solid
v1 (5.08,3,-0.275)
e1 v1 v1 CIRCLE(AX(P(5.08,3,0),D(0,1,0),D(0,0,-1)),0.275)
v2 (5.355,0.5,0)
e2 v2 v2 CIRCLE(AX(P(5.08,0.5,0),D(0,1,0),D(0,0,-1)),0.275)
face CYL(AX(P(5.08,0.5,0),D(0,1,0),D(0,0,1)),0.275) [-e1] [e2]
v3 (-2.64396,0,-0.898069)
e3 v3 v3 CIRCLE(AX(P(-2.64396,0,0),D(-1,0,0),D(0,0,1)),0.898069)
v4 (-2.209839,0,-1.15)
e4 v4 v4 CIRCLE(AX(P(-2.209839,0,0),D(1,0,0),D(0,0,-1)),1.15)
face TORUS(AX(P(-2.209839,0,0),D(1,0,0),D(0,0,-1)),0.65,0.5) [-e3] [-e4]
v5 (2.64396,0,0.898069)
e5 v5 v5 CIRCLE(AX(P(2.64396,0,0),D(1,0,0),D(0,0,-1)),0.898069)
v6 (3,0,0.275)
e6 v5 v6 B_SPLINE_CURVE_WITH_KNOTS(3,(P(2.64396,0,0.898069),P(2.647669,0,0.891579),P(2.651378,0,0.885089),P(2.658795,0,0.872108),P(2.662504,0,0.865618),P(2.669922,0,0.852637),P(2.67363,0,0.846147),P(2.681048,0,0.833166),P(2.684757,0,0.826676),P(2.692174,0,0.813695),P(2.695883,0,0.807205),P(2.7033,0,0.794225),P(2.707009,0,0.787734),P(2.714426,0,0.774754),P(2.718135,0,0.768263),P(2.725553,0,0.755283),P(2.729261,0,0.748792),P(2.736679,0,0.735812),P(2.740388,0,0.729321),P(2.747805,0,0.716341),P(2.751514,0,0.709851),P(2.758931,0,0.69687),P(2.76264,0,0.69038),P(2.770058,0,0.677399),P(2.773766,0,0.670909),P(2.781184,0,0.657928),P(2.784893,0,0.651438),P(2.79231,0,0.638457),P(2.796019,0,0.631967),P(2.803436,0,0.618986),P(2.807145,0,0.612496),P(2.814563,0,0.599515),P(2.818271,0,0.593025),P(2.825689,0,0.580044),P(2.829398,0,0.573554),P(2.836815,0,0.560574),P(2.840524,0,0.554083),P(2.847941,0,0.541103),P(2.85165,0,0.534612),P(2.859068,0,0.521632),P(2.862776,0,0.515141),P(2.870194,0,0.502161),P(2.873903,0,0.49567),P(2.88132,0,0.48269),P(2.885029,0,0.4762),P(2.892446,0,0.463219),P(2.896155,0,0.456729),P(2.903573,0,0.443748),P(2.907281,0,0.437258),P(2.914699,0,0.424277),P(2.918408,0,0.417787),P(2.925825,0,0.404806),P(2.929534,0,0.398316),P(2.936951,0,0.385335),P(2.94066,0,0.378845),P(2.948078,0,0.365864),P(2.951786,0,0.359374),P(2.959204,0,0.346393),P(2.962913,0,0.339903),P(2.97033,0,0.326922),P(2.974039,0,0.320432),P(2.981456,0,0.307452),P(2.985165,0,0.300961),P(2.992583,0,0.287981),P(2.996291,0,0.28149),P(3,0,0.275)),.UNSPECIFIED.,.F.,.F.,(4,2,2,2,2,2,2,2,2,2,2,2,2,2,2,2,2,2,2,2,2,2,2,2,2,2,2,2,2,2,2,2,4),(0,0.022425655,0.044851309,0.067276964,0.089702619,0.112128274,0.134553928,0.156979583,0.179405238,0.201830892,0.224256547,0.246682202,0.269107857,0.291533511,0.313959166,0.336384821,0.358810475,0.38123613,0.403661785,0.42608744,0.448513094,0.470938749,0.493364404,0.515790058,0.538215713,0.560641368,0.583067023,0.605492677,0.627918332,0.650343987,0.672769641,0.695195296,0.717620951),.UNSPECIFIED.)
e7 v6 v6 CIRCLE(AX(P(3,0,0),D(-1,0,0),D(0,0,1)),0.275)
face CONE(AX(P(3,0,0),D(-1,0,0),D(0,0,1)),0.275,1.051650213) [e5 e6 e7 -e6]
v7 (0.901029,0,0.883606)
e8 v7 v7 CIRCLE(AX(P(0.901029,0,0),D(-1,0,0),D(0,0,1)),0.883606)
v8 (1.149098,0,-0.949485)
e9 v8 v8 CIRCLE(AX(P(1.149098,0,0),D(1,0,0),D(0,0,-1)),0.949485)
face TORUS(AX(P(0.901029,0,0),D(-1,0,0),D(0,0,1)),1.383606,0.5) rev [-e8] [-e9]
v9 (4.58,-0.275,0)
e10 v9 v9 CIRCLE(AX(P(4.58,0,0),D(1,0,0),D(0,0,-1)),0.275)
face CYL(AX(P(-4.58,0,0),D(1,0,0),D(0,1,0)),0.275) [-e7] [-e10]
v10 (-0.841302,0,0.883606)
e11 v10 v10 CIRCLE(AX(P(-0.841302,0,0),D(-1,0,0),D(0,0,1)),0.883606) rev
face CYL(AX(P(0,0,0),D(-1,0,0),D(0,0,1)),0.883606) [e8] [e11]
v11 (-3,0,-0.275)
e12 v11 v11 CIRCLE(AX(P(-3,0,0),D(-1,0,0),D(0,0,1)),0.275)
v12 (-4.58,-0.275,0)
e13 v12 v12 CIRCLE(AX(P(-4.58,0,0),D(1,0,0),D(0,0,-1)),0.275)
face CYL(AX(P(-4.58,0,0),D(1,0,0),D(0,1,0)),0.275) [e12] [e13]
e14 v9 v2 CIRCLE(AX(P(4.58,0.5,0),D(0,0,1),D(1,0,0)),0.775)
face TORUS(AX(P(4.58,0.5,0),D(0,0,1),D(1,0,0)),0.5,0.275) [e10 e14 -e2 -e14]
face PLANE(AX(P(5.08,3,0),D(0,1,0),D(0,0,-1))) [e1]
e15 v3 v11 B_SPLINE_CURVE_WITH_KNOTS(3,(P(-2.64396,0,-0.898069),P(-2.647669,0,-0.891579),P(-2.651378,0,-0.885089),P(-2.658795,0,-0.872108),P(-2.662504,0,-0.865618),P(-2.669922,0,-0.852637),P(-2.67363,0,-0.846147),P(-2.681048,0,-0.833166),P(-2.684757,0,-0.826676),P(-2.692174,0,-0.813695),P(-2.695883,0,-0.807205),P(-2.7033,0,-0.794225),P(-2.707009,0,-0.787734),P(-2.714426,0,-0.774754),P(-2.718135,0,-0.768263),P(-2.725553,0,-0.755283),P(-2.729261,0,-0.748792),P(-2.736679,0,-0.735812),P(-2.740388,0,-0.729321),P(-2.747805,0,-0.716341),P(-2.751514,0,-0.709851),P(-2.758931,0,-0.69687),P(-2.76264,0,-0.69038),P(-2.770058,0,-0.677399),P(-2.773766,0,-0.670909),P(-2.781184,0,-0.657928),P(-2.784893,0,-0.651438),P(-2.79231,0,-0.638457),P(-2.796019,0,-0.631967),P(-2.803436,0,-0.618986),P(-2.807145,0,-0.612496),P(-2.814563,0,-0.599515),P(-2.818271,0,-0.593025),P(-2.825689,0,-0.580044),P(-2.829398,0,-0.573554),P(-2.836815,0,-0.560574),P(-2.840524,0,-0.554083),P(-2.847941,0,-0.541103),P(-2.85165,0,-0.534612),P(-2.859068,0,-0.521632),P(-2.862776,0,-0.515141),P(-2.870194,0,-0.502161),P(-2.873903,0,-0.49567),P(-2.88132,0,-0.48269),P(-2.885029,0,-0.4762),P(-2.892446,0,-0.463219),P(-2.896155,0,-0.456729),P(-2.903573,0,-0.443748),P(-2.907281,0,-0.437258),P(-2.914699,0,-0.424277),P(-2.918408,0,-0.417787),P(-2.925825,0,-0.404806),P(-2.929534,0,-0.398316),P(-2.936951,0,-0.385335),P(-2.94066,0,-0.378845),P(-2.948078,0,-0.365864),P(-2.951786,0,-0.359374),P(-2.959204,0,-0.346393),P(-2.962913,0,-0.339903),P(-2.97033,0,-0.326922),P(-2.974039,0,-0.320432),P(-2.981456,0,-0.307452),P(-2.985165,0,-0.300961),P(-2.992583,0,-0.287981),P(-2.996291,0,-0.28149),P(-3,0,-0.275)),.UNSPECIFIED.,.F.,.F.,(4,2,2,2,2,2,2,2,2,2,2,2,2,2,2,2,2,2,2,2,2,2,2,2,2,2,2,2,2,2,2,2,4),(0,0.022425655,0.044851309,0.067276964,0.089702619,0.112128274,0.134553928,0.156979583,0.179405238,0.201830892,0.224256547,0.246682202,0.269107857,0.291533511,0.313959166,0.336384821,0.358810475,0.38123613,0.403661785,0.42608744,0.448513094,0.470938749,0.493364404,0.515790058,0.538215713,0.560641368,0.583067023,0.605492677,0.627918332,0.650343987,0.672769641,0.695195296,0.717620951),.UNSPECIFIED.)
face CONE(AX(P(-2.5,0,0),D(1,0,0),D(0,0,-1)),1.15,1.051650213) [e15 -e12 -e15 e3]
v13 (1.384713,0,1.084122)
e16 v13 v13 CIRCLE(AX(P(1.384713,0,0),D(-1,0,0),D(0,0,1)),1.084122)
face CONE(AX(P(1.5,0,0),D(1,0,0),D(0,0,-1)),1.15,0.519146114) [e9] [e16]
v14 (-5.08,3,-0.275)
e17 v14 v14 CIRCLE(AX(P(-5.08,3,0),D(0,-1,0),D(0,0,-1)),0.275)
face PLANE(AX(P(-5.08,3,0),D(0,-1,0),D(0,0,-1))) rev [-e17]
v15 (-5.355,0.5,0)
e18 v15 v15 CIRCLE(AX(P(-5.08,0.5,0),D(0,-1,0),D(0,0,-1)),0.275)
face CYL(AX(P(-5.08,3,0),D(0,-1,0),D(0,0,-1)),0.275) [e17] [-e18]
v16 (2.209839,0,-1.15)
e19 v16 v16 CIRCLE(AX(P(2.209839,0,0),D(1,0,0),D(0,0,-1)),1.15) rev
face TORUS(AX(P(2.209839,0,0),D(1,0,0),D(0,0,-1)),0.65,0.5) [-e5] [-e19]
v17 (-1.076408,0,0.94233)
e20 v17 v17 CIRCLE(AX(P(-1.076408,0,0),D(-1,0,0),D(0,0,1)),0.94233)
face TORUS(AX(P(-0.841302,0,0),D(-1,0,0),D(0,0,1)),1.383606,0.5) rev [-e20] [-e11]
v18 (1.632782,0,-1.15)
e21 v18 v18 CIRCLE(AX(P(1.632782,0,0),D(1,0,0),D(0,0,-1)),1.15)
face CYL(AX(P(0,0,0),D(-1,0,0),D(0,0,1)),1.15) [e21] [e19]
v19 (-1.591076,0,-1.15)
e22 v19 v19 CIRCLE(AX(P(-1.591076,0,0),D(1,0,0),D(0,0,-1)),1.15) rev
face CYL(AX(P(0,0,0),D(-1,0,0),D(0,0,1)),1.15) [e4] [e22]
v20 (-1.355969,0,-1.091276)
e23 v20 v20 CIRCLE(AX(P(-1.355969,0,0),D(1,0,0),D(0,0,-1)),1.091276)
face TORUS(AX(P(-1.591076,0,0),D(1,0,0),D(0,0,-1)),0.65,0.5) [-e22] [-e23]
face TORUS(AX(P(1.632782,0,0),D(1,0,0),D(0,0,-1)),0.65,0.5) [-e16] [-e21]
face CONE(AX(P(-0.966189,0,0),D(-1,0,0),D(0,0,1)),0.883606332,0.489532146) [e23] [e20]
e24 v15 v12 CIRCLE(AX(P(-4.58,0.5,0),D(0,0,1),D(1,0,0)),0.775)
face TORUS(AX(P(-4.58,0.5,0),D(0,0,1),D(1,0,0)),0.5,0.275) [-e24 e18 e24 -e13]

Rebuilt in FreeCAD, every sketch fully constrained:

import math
import FreeCAD as App
import Part
import Sketcher
from FreeCAD import Vector


def edges_at(feature, points):
    """Names of the edges that pass closest to the given points."""
    edges = feature.Shape.Edges
    near = lambda p: min(range(len(edges)), key=lambda i: edges[i].distToShape(Part.Vertex(*p))[0])
    return sorted({f"Edge{near(p) + 1}" for p in points})

doc = App.newDocument("Part")
params = doc.addObject("Spreadsheet::Sheet", "Params")
for row, (alias, value) in enumerate([
    ("sketch1_width", "1 mm"),
    ("sketch1_width2", "2 mm"),
    ("sketch1_width3", "6 mm"),
    ("revolution_angle", "360 deg"),
    ("fillet_radius", "0.5 mm"),
    ("sketch2_diameter", "0.55 mm"),
    ("sketch3_radius", "0.5 mm"),
    ("sketch3_height", "2.5 mm"),
    ("sketch3_width", "9.16 mm"),
], start=1):
    params.set(f"A{row}", alias)
    params.set(f"B{row}", "=" + value)
    params.setAlias(f"B{row}", alias)

body = doc.addObject("PartDesign::Body", "Body")

# Sketch on XY plane
sketch1 = body.newObject("Sketcher::SketchObject", "Sketch")
sketch1.AttachmentSupport = (doc.getObject("XY_Plane"), [""])
sketch1.MapMode = "FlatFace"
sketch1.addGeometry(Part.LineSegment(Vector(3, 0, 0), Vector(3, 0.28, 0)), False)
sketch1.addGeometry(Part.LineSegment(Vector(3, 0.28, 0), Vector(2.5, 1.15, 0)), False)
sketch1.addGeometry(Part.LineSegment(Vector(2.5, 1.15, 0), Vector(1.5, 1.15, 0)), False)
sketch1.addGeometry(Part.LineSegment(Vector(1.5, 1.15, 0), Vector(1.03, 0.88, 0)), False)
sketch1.addGeometry(Part.LineSegment(Vector(1.03, 0.88, 0), Vector(-0.97, 0.88, 0)), False)
sketch1.addGeometry(Part.LineSegment(Vector(-0.97, 0.88, 0), Vector(-1.47, 1.15, 0)), False)
sketch1.addGeometry(Part.LineSegment(Vector(-1.47, 1.15, 0), Vector(-2.5, 1.15, 0)), False)
sketch1.addGeometry(Part.LineSegment(Vector(-2.5, 1.15, 0), Vector(-3, 0.28, 0)), False)
sketch1.addGeometry(Part.LineSegment(Vector(-3, 0.28, 0), Vector(-3, 0, 0)), False)
sketch1.addGeometry(Part.LineSegment(Vector(-3, 0, 0), Vector(3, 0, 0)), False)
sketch1.addConstraint(Sketcher.Constraint("Coincident", 0, 2, 1, 1))
sketch1.addConstraint(Sketcher.Constraint("Coincident", 1, 2, 2, 1))
sketch1.addConstraint(Sketcher.Constraint("Coincident", 2, 2, 3, 1))
sketch1.addConstraint(Sketcher.Constraint("Coincident", 3, 2, 4, 1))
sketch1.addConstraint(Sketcher.Constraint("Coincident", 4, 2, 5, 1))
sketch1.addConstraint(Sketcher.Constraint("Coincident", 5, 2, 6, 1))
sketch1.addConstraint(Sketcher.Constraint("Coincident", 6, 2, 7, 1))
sketch1.addConstraint(Sketcher.Constraint("Coincident", 7, 2, 8, 1))
sketch1.addConstraint(Sketcher.Constraint("Coincident", 8, 2, 9, 1))
sketch1.addConstraint(Sketcher.Constraint("Coincident", 9, 2, 0, 1))
sketch1.addConstraint(Sketcher.Constraint("Vertical", 0))
sketch1.addConstraint(Sketcher.Constraint("Horizontal", 2))
sketch1.addConstraint(Sketcher.Constraint("Horizontal", 4))
sketch1.addConstraint(Sketcher.Constraint("Horizontal", 6))
sketch1.addConstraint(Sketcher.Constraint("Vertical", 8))
sketch1.addConstraint(Sketcher.Constraint("Horizontal", 9))
sketch1.addConstraint(Sketcher.Constraint("Symmetric", 8, 2, 9, 2, -1, 1))
sketch1.addConstraint(Sketcher.Constraint("Symmetric", 1, 2, 6, 2, -2))
sketch1.addConstraint(Sketcher.Constraint("Perpendicular", 1, 3))
sketch1.addConstraint(Sketcher.Constraint("Horizontal", 0, 2, 7, 2))
sketch1.addConstraint(Sketcher.Constraint("DistanceX", 2, 2, 2, 1, 1.0))
sketch1.addConstraint(Sketcher.Constraint("DistanceX", 4, 2, 4, 1, 2.0))
sketch1.addConstraint(Sketcher.Constraint("DistanceX", 9, 1, 9, 2, 6.0))
sketch1.addConstraint(Sketcher.Constraint("DistanceX", 6, 2, 2, 2, 4.0))
sketch1.addConstraint(Sketcher.Constraint("DistanceX", 5, 2, 4, 2, 0.5))
sketch1.addConstraint(Sketcher.Constraint("DistanceY", 0, 1, 0, 2, 0.275))
sketch1.addConstraint(Sketcher.Constraint("DistanceY", -1, 1, 1, 2, 1.15))
sketch1.addConstraint(Sketcher.Constraint("DistanceX", 6, 2, 6, 1, 1.033811))
sketch1.setExpression("Constraints[20]", "Params.sketch1_width")
sketch1.setExpression("Constraints[21]", "Params.sketch1_width2")
sketch1.setExpression("Constraints[22]", "Params.sketch1_width3")
revolution = body.newObject("PartDesign::Revolution", "Revolution")
revolution.Profile = sketch1
revolution.ReferenceAxis = (sketch1, ["H_Axis"])
revolution.setExpression("Angle", "Params.revolution_angle")
doc.recompute()

fillet = body.newObject("PartDesign::Fillet", "Fillet")
fillet.Base = (revolution, edges_at(revolution, [
    (1.5, 0, -1.15),
    (2.5, 0, -1.15),
    (-2.5, 0, -1.15),
    (-1.466, 0, -1.15),
    (-0.966, 0, -0.884),
    (1.034, 0, -0.884),
]))
fillet.setExpression("Radius", "Params.fillet_radius")

# Sketch on YZ plane
sketch2 = body.newObject("Sketcher::SketchObject", "Sketch001")
sketch2.AttachmentSupport = (doc.getObject("YZ_Plane"), [""])
sketch2.MapMode = "FlatFace"
sketch2.AttachmentOffset = App.Placement(Vector(0, 0, 3), App.Rotation())
sketch2.addGeometry(Part.Circle(Vector(0, 0, 0), Vector(0, 0, 1), 0.28), False)
sketch2.addConstraint(Sketcher.Constraint("Coincident", 0, 3, -1, 1))
sketch2.addConstraint(Sketcher.Constraint("Diameter", 0, 0.55))
sketch2.setExpression("Constraints[1]", "Params.sketch2_diameter")

# Sketch on XY plane
sketch3 = body.newObject("Sketcher::SketchObject", "Sketch002")
sketch3.AttachmentSupport = (doc.getObject("XY_Plane"), [""])
sketch3.MapMode = "FlatFace"
sketch3.addGeometry(Part.LineSegment(Vector(5.08, 3, 0), Vector(5.08, 0.5, 0)), False)
sketch3.addGeometry(Part.ArcOfCircle(Part.Circle(Vector(4.58, 0.5, 0), Vector(0, 0, 1), 0.5), math.radians(-90), math.radians(0)), False)
sketch3.addGeometry(Part.LineSegment(Vector(4.58, 0, 0), Vector(-4.58, 0, 0)), False)
sketch3.addGeometry(Part.ArcOfCircle(Part.Circle(Vector(-4.58, 0.5, 0), Vector(0, 0, 1), 0.5), math.radians(180), math.radians(270)), False)
sketch3.addGeometry(Part.LineSegment(Vector(-5.08, 0.5, 0), Vector(-5.08, 3, 0)), False)
sketch3.addConstraint(Sketcher.Constraint("Tangent", 0, 2, 1, 2))
sketch3.addConstraint(Sketcher.Constraint("Tangent", 1, 1, 2, 1))
sketch3.addConstraint(Sketcher.Constraint("Tangent", 2, 2, 3, 2))
sketch3.addConstraint(Sketcher.Constraint("Tangent", 3, 1, 4, 1))
sketch3.addConstraint(Sketcher.Constraint("Vertical", 0))
sketch3.addConstraint(Sketcher.Constraint("Horizontal", 2))
sketch3.addConstraint(Sketcher.Constraint("Vertical", 4))
sketch3.addConstraint(Sketcher.Constraint("Equal", 1, 3))
sketch3.addConstraint(Sketcher.Constraint("Symmetric", 1, 1, 2, 2, -1, 1))
sketch3.addConstraint(Sketcher.Constraint("Horizontal", 0, 1, 4, 2))
sketch3.addConstraint(Sketcher.Constraint("Radius", 1, 0.5))
sketch3.addConstraint(Sketcher.Constraint("DistanceY", 0, 2, 0, 1, 2.5))
sketch3.addConstraint(Sketcher.Constraint("DistanceX", 2, 2, 2, 1, 9.16))
sketch3.setExpression("Constraints[10]", "Params.sketch3_radius")
sketch3.setExpression("Constraints[11]", "Params.sketch3_height")
sketch3.setExpression("Constraints[12]", "Params.sketch3_width")
doc.recompute()

additivepipe = body.newObject("PartDesign::AdditivePipe", "AdditivePipe")
additivepipe.Profile = sketch2
additivepipe.Spine = (sketch3, ["Edge1", "Edge2", "Edge3", "Edge4", "Edge5"])

doc.recompute()
